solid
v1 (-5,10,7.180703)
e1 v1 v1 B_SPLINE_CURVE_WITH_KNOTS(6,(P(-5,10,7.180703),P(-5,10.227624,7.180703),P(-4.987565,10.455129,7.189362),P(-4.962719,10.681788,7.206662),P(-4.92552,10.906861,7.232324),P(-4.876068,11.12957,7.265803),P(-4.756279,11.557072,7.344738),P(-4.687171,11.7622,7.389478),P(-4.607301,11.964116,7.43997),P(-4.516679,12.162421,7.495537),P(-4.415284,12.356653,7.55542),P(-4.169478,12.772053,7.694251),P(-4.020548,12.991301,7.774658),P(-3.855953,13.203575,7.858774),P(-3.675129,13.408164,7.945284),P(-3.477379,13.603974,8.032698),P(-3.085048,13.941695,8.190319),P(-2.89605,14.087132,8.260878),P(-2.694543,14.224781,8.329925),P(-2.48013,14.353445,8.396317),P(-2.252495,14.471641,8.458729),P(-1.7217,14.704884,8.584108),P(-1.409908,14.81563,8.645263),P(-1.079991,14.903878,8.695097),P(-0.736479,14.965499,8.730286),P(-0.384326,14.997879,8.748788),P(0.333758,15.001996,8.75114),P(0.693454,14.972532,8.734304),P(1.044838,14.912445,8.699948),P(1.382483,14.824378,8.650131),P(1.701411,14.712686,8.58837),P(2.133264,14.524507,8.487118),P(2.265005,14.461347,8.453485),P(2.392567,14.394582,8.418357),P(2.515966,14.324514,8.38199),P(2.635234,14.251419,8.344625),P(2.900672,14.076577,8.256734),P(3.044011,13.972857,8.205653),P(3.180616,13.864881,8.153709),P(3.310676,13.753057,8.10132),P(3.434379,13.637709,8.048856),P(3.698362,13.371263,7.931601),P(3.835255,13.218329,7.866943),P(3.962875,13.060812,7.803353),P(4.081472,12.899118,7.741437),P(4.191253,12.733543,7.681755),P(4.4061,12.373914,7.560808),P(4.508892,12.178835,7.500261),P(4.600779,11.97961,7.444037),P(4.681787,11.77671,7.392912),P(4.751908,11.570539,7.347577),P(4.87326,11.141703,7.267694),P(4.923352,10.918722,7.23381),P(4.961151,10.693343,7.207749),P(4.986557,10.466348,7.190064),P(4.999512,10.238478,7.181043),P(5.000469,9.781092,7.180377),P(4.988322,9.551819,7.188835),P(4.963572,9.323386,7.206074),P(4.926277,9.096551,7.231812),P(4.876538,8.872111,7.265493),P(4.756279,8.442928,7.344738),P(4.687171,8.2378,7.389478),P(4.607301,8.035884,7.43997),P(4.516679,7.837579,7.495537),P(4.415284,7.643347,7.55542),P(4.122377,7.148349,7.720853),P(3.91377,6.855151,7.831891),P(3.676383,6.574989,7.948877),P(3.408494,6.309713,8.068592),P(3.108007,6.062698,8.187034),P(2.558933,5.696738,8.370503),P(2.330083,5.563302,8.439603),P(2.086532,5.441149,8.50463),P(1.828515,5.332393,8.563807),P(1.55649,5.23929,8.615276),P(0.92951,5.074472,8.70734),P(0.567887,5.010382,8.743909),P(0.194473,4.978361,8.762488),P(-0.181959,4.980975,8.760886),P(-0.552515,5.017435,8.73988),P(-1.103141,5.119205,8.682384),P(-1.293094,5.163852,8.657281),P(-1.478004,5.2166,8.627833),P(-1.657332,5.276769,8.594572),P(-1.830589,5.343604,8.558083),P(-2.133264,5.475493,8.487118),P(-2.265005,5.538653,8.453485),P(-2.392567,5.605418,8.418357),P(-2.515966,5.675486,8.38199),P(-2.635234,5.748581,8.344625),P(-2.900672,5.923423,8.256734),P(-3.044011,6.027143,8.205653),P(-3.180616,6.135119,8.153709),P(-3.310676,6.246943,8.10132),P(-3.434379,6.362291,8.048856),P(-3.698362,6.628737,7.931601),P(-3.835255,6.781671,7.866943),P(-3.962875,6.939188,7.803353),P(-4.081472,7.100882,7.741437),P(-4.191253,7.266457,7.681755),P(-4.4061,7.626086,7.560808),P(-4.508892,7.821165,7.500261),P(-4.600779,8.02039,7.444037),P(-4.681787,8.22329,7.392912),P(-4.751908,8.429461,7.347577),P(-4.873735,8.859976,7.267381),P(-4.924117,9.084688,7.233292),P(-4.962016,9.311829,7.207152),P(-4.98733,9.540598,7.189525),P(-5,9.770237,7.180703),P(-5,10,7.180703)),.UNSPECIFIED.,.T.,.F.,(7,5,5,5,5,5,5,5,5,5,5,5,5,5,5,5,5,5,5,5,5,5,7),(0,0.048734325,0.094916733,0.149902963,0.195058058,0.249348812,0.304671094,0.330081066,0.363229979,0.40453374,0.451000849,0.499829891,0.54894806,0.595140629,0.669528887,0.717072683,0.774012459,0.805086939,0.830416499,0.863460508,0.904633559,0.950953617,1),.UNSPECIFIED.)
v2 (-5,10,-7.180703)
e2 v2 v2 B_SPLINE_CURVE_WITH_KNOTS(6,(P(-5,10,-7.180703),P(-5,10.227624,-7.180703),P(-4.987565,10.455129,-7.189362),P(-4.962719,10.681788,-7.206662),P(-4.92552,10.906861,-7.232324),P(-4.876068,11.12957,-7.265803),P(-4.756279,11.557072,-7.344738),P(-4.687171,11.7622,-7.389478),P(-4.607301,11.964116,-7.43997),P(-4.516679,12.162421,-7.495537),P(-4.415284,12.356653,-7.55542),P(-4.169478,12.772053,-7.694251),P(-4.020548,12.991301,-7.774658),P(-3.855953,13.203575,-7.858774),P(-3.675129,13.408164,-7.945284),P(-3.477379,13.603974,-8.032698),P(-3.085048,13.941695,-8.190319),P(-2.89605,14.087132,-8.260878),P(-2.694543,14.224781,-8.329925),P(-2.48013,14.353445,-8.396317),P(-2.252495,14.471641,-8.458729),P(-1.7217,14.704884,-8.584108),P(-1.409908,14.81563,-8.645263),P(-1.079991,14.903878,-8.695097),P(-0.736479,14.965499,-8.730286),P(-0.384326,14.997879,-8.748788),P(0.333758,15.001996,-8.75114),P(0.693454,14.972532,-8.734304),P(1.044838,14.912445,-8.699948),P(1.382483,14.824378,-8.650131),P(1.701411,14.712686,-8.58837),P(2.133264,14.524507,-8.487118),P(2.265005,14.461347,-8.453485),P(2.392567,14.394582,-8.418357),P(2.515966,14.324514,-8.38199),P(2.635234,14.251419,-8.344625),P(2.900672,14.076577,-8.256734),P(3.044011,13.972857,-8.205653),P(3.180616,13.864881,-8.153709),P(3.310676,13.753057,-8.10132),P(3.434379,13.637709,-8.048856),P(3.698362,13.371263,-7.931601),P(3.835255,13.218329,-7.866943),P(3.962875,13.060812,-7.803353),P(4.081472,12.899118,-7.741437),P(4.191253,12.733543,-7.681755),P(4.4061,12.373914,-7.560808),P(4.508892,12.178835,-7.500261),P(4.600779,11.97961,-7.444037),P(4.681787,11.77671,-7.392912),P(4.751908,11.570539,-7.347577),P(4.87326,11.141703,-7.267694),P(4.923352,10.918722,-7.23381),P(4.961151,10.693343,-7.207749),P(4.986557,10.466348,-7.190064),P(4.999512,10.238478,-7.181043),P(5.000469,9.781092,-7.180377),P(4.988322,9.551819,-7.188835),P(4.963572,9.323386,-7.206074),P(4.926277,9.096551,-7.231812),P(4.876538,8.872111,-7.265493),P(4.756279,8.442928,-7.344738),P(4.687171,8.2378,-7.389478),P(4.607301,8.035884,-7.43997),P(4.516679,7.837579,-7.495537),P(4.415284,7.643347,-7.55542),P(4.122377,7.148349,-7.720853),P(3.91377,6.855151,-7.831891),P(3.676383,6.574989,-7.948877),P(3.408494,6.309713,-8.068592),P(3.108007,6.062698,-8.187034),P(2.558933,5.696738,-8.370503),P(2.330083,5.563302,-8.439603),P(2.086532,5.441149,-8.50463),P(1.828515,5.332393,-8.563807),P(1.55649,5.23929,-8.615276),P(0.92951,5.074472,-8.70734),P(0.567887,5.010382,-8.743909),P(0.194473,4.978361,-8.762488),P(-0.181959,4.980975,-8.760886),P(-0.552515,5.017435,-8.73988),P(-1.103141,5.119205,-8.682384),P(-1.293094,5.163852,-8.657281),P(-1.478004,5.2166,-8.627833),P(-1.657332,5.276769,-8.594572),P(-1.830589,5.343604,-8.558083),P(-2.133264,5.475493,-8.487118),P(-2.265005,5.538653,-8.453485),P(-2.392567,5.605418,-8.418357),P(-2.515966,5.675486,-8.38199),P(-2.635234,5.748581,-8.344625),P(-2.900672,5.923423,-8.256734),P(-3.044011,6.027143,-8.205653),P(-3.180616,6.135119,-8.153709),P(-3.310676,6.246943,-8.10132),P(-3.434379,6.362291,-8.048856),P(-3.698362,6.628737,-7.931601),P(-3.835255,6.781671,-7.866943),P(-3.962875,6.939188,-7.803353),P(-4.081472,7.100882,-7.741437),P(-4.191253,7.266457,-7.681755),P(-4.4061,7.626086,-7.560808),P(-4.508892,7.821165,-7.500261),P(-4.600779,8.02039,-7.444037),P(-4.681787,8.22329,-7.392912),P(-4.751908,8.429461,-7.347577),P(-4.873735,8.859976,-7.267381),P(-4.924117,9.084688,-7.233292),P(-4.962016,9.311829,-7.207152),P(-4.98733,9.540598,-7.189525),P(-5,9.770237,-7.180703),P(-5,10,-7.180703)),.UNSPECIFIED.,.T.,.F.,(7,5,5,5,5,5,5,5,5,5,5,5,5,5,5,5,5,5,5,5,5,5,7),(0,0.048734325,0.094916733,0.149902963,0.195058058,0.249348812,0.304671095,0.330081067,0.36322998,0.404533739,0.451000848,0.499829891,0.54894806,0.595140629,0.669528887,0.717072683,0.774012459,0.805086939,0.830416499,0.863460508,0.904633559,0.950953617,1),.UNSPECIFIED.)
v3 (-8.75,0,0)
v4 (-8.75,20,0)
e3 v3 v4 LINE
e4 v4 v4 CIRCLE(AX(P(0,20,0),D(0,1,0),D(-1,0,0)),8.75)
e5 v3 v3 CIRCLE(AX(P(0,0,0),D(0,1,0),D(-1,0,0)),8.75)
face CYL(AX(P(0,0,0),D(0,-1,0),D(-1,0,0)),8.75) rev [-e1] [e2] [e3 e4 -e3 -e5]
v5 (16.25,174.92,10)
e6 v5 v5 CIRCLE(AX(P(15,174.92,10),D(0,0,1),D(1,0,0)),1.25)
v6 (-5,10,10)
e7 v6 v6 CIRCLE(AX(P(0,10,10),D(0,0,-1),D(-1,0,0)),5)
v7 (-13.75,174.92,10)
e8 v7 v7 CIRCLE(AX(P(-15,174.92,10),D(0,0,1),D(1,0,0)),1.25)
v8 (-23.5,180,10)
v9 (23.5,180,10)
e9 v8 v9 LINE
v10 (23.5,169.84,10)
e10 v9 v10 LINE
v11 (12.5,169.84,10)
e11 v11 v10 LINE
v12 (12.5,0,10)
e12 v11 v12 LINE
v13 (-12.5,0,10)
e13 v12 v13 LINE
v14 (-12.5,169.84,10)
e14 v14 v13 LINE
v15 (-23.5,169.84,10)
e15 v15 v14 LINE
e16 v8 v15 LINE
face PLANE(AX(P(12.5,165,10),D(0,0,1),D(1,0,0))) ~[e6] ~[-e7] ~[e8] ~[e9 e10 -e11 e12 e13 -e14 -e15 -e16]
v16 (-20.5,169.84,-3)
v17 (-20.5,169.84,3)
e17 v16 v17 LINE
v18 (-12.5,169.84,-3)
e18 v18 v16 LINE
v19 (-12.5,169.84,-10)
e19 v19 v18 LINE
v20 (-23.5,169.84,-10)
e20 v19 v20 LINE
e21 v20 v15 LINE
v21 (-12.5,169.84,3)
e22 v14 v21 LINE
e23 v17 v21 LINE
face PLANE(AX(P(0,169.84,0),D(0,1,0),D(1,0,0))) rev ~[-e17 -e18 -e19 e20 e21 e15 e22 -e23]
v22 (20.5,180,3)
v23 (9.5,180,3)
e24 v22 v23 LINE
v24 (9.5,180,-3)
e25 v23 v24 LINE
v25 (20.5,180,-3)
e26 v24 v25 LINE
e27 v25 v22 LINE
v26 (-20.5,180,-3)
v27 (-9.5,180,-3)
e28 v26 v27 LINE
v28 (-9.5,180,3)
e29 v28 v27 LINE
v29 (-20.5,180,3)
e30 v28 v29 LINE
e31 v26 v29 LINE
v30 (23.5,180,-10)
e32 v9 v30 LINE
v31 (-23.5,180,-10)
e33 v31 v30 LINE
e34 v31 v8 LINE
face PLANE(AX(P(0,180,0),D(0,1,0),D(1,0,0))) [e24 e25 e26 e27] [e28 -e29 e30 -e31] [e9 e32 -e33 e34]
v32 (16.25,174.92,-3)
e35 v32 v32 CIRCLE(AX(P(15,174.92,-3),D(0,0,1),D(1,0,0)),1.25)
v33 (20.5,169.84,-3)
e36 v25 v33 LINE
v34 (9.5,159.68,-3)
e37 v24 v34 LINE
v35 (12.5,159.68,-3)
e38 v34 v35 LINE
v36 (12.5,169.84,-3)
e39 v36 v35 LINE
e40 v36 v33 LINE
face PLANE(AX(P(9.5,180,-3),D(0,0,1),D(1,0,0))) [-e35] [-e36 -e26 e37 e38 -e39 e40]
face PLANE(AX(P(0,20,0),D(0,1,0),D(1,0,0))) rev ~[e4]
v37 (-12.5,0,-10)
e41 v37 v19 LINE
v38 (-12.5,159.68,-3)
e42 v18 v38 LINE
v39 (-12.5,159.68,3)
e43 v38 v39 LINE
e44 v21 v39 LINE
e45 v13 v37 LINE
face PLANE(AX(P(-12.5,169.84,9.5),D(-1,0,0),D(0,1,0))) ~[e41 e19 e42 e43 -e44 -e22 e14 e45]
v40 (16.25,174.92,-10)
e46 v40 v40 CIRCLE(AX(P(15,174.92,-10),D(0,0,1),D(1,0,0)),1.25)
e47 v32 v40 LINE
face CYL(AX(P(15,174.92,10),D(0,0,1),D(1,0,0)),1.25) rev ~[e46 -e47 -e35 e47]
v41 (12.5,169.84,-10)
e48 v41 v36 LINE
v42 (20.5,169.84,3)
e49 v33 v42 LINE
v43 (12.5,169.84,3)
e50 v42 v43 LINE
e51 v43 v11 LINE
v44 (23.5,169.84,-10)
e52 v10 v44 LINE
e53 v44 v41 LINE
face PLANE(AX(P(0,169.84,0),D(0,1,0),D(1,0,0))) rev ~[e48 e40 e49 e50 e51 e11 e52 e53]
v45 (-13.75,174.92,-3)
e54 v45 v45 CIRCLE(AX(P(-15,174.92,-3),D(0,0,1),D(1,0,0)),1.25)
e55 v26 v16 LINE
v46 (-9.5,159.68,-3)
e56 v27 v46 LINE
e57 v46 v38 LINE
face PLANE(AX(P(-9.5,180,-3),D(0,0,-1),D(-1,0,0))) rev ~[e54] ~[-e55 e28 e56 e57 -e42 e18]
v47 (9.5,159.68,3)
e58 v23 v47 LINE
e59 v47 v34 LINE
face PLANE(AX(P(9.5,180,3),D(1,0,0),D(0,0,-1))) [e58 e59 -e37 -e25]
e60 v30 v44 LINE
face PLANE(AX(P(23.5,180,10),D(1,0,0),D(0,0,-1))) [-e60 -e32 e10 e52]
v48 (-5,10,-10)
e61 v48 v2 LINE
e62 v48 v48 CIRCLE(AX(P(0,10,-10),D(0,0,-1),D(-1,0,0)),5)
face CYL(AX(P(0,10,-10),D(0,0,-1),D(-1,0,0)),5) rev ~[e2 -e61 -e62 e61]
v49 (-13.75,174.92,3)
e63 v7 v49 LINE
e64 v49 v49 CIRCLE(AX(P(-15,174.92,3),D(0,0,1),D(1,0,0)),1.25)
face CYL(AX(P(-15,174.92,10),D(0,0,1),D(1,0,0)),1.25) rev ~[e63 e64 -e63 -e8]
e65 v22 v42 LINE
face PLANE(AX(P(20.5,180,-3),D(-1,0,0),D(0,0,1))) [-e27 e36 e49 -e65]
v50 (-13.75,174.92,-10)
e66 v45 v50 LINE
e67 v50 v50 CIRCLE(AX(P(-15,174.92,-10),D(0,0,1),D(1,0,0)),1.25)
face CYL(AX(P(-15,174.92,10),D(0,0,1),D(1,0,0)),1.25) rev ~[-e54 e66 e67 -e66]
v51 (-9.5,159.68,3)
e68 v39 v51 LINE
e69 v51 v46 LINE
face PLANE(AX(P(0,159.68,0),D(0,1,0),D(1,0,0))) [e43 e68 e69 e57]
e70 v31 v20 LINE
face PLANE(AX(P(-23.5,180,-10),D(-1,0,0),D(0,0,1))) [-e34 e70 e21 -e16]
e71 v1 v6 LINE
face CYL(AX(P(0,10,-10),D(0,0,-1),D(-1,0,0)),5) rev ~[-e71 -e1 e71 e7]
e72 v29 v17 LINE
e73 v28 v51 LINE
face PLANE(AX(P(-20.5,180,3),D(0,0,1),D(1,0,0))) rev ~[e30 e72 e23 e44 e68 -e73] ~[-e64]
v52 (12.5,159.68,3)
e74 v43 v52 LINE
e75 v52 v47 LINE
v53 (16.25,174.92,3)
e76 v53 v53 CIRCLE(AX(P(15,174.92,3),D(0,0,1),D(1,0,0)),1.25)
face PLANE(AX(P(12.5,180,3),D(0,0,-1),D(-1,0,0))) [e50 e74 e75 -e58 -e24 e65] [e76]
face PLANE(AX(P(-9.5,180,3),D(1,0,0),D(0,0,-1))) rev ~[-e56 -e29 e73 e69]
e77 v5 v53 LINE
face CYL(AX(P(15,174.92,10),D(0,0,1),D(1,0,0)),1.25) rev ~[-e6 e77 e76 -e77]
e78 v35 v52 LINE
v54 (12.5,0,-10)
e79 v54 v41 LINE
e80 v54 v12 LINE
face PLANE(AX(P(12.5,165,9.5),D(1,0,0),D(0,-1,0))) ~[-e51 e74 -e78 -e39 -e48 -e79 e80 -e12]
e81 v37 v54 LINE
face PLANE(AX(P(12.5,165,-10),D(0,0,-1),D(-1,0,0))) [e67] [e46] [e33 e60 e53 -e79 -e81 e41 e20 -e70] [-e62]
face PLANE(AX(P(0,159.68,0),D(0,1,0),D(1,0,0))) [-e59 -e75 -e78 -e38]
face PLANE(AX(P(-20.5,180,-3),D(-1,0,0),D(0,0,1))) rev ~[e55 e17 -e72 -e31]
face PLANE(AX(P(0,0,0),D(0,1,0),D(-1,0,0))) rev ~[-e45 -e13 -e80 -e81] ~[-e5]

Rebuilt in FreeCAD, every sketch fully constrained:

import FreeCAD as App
import Part
import Sketcher
Q = App.Units.Quantity

doc = App.newDocument("Part")
body = doc.addObject("PartDesign::Body", "Body")

# Sketch on XZ plane
sketch1 = doc.addObject("Sketcher::SketchObject", "Sketch")
body.addObject(sketch1)
sketch1.AttachmentSupport = (doc.XZ_Plane, [""])
sketch1.MapMode = "FlatFace"
sketch1.addGeometry(Part.LineSegment(App.Vector(-12, 10, 0), App.Vector(12, 10, 0)), False)
sketch1.addGeometry(Part.LineSegment(App.Vector(12, 10, 0), App.Vector(12, -10, 0)), False)
sketch1.addGeometry(Part.LineSegment(App.Vector(12, -10, 0), App.Vector(-12, -10, 0)), False)
sketch1.addGeometry(Part.LineSegment(App.Vector(-12, -10, 0), App.Vector(-12, 10, 0)), False)
sketch1.addGeometry(Part.Circle(App.Vector(0, 0, 0), App.Vector(0, 0, 1), 9), False)
sketch1.addConstraint(Sketcher.Constraint("Coincident", 0, 2, 1, 1))
sketch1.addConstraint(Sketcher.Constraint("Coincident", 1, 2, 2, 1))
sketch1.addConstraint(Sketcher.Constraint("Coincident", 2, 2, 3, 1))
sketch1.addConstraint(Sketcher.Constraint("Coincident", 3, 2, 0, 1))
sketch1.addConstraint(Sketcher.Constraint("Horizontal", 0))
sketch1.addConstraint(Sketcher.Constraint("Vertical", 1))
sketch1.addConstraint(Sketcher.Constraint("Horizontal", 2))
sketch1.addConstraint(Sketcher.Constraint("Vertical", 3))
sketch1.addConstraint(Sketcher.Constraint("Coincident", 4, 3, -1, 1))
sketch1.addConstraint(Sketcher.Constraint("Symmetric", 0, 2, 2, 2, -1, 1))
sketch1.addConstraint(Sketcher.Constraint("Diameter", 4, 17.5))
sketch1.addConstraint(Sketcher.Constraint("DistanceX", 0, 1, 0, 2, 25.0))
sketch1.addConstraint(Sketcher.Constraint("DistanceY", 1, 2, 1, 1, 20.0))
pad1 = doc.addObject("PartDesign::Pad", "Pad")
body.addObject(pad1)
pad1.Profile = sketch1
pad1.Length = 20
pad1.Reversed = True

# Sketch on XY plane
sketch2 = doc.addObject("Sketcher::SketchObject", "Sketch001")
body.addObject(sketch2)
sketch2.AttachmentSupport = (doc.XY_Plane, [""])
sketch2.MapMode = "FlatFace"
sketch2.AttachmentOffset = App.Placement(App.Vector(0, 0, -10), App.Rotation())
sketch2.addGeometry(Part.Circle(App.Vector(0, 10, 0), App.Vector(0, 0, 1), 5), False)
sketch2.addConstraint(Sketcher.Constraint("PointOnObject", 0, 3, -2))
sketch2.addConstraint(Sketcher.Constraint("Diameter", 0, 10.0))
sketch2.addConstraint(Sketcher.Constraint("DistanceY", -1, 1, 0, 3, 10.0))
pocket1 = doc.addObject("PartDesign::Pocket", "Pocket")
body.addObject(pocket1)
pocket1.Profile = sketch2
pocket1.Length = 20
pocket1.Reversed = True

# Sketch on XZ plane
sketch3 = doc.addObject("Sketcher::SketchObject", "Sketch002")
body.addObject(sketch3)
sketch3.AttachmentSupport = (doc.XZ_Plane, [""])
sketch3.MapMode = "FlatFace"
sketch3.AttachmentOffset = App.Placement(App.Vector(0, 0, -20), App.Rotation())
sketch3.addGeometry(Part.LineSegment(App.Vector(12, 10, 0), App.Vector(12, -10, 0)), False)
sketch3.addGeometry(Part.LineSegment(App.Vector(12, -10, 0), App.Vector(-12, -10, 0)), False)
sketch3.addGeometry(Part.LineSegment(App.Vector(-12, -10, 0), App.Vector(-12, 10, 0)), False)
sketch3.addGeometry(Part.LineSegment(App.Vector(-12, 10, 0), App.Vector(12, 10, 0)), False)
sketch3.addConstraint(Sketcher.Constraint("Coincident", 0, 2, 1, 1))
sketch3.addConstraint(Sketcher.Constraint("Coincident", 1, 2, 2, 1))
sketch3.addConstraint(Sketcher.Constraint("Coincident", 2, 2, 3, 1))
sketch3.addConstraint(Sketcher.Constraint("Coincident", 3, 2, 0, 1))
sketch3.addConstraint(Sketcher.Constraint("Vertical", 0))
sketch3.addConstraint(Sketcher.Constraint("Horizontal", 1))
sketch3.addConstraint(Sketcher.Constraint("Vertical", 2))
sketch3.addConstraint(Sketcher.Constraint("Horizontal", 3))
sketch3.addConstraint(Sketcher.Constraint("Symmetric", 0, 2, 2, 2, -1, 1))
sketch3.addConstraint(Sketcher.Constraint("DistanceX", 1, 2, 1, 1, 25.0))
sketch3.addConstraint(Sketcher.Constraint("DistanceY", 0, 2, 0, 1, 20.0))
pad2 = doc.addObject("PartDesign::Pad", "Pad001")
body.addObject(pad2)
pad2.Profile = sketch3
pad2.Length = 160
pad2.Reversed = True

# Sketch on XY plane
sketch4 = doc.addObject("Sketcher::SketchObject", "Sketch003")
body.addObject(sketch4)
sketch4.AttachmentSupport = (doc.XY_Plane, [""])
sketch4.MapMode = "FlatFace"
sketch4.AttachmentOffset = App.Placement(App.Vector(0, 0, 10), App.Rotation())
sketch4.addGeometry(Part.LineSegment(App.Vector(12, 165, 0), App.Vector(12, 180, 0)), False)
sketch4.addGeometry(Part.LineSegment(App.Vector(12, 180, 0), App.Vector(-12, 180, 0)), False)
sketch4.addGeometry(Part.LineSegment(App.Vector(-12, 180, 0), App.Vector(-12, 165, 0)), False)
sketch4.addGeometry(Part.LineSegment(App.Vector(-12, 165, 0), App.Vector(12, 165, 0)), False)
sketch4.addConstraint(Sketcher.Constraint("Coincident", 0, 2, 1, 1))
sketch4.addConstraint(Sketcher.Constraint("Coincident", 1, 2, 2, 1))
sketch4.addConstraint(Sketcher.Constraint("Coincident", 2, 2, 3, 1))
sketch4.addConstraint(Sketcher.Constraint("Coincident", 3, 2, 0, 1))
sketch4.addConstraint(Sketcher.Constraint("Vertical", 0))
sketch4.addConstraint(Sketcher.Constraint("Horizontal", 1))
sketch4.addConstraint(Sketcher.Constraint("Vertical", 2))
sketch4.addConstraint(Sketcher.Constraint("Horizontal", 3))
sketch4.addConstraint(Sketcher.Constraint("DistanceY", 0, 1, 0, 2, 15.0))
sketch4.addConstraint(Sketcher.Constraint("DistanceX", 1, 2, 1, 1, 25.0))
sketch4.addConstraint(Sketcher.Constraint("DistanceY", -1, 1, 0, 2, 180.0))
sketch4.addConstraint(Sketcher.Constraint("DistanceX", -1, 1, 0, 2, 12.5))
pocket2 = doc.addObject("PartDesign::Pocket", "Pocket001")
body.addObject(pocket2)
pocket2.Profile = sketch4
pocket2.Length = 0.5
doc.recompute()

mirrored = doc.addObject("PartDesign::Mirrored", "Mirrored")
body.addObject(mirrored)
mirrored.Originals = [pocket2]
mirrored.MirrorPlane = (doc.XY_Plane, [""])
body.Tip = mirrored

# Sketch on XZ plane
sketch5 = doc.addObject("Sketcher::SketchObject", "Sketch004")
body.addObject(sketch5)
sketch5.AttachmentSupport = (doc.XZ_Plane, [""])
sketch5.MapMode = "FlatFace"
sketch5.AttachmentOffset = App.Placement(App.Vector(0, 0, -180), App.Rotation())
sketch5.addGeometry(Part.LineSegment(App.Vector(5, 0, 0), App.Vector(3, -4, 0)), False)
sketch5.addGeometry(Part.LineSegment(App.Vector(3, -4, 0), App.Vector(-3, -4, 0)), False)
sketch5.addGeometry(Part.LineSegment(App.Vector(-3, -4, 0), App.Vector(-5, 0, 0)), False)
sketch5.addGeometry(Part.LineSegment(App.Vector(-5, 0, 0), App.Vector(-3, 4, 0)), False)
sketch5.addGeometry(Part.LineSegment(App.Vector(-3, 4, 0), App.Vector(3, 4, 0)), False)
sketch5.addGeometry(Part.LineSegment(App.Vector(3, 4, 0), App.Vector(5, 0, 0)), False)
sketch5.addConstraint(Sketcher.Constraint("Coincident", 0, 2, 1, 1))
sketch5.addConstraint(Sketcher.Constraint("Coincident", 1, 2, 2, 1))
sketch5.addConstraint(Sketcher.Constraint("Coincident", 2, 2, 3, 1))
sketch5.addConstraint(Sketcher.Constraint("Coincident", 3, 2, 4, 1))
sketch5.addConstraint(Sketcher.Constraint("Coincident", 4, 2, 5, 1))
sketch5.addConstraint(Sketcher.Constraint("Coincident", 5, 2, 0, 1))
sketch5.addConstraint(Sketcher.Constraint("Horizontal", 1))
sketch5.addConstraint(Sketcher.Constraint("Horizontal", 4))
sketch5.addConstraint(Sketcher.Constraint("Symmetric", 0, 2, 3, 2, -1, 1))
sketch5.addConstraint(Sketcher.Constraint("Symmetric", 2, 2, 5, 2, -1, 1))
sketch5.addConstraint(Sketcher.Constraint("PointOnObject", 2, 2, -1))
sketch5.addConstraint(Sketcher.Constraint("Parallel", 2, 5))
sketch5.addConstraint(Sketcher.Constraint("Vertical", 1, 2, 3, 2))
sketch5.addConstraint(Sketcher.Constraint("DistanceY", 1, 2, 3, 2, 9.0))
sketch5.addConstraint(Sketcher.Constraint("Angle", 0, Q("-120.0002 deg")))
sketch5.addConstraint(Sketcher.Constraint("DistanceX", 1, 2, 1, 1, 5.1962))
pocket3 = doc.addObject("PartDesign::Pocket", "Pocket002")
body.addObject(pocket3)
pocket3.Profile = sketch5
pocket3.Length = 8
pocket3.Reversed = True

# Sketch on XZ plane
sketch6 = doc.addObject("Sketcher::SketchObject", "Sketch005")
body.addObject(sketch6)
sketch6.AttachmentSupport = (doc.XZ_Plane, [""])
sketch6.MapMode = "FlatFace"
sketch6.AttachmentOffset = App.Placement(App.Vector(0, 0, -172), App.Rotation())
sketch6.addGeometry(Part.LineSegment(App.Vector(-2.6, -4.5, 0), App.Vector(-5.2, 0, 0)), False)
sketch6.addGeometry(Part.LineSegment(App.Vector(-5.2, 0, 0), App.Vector(-2.6, 4.5, 0)), False)
sketch6.addGeometry(Part.LineSegment(App.Vector(-2.6, 4.5, 0), App.Vector(2.6, 4.5, 0)), False)
sketch6.addGeometry(Part.LineSegment(App.Vector(2.6, 4.5, 0), App.Vector(5.2, 0, 0)), False)
sketch6.addGeometry(Part.LineSegment(App.Vector(5.2, 0, 0), App.Vector(2.6, -4.5, 0)), False)
sketch6.addGeometry(Part.LineSegment(App.Vector(2.6, -4.5, 0), App.Vector(-2.6, -4.5, 0)), False)
sketch6.addGeometry(Part.LineSegment(App.Vector(-2, -3.5, 0), App.Vector(2, -3.5, 0)), False)
sketch6.addGeometry(Part.LineSegment(App.Vector(2, -3.5, 0), App.Vector(4, 0, 0)), False)
sketch6.addGeometry(Part.LineSegment(App.Vector(4, 0, 0), App.Vector(2, 3.5, 0)), False)
sketch6.addGeometry(Part.LineSegment(App.Vector(2, 3.5, 0), App.Vector(-2, 3.5, 0)), False)
sketch6.addGeometry(Part.LineSegment(App.Vector(-2, 3.5, 0), App.Vector(-4, 0, 0)), False)
sketch6.addGeometry(Part.LineSegment(App.Vector(-4, 0, 0), App.Vector(-2, -3.5, 0)), False)
sketch6.addConstraint(Sketcher.Constraint("Coincident", 0, 2, 1, 1))
sketch6.addConstraint(Sketcher.Constraint("Coincident", 1, 2, 2, 1))
sketch6.addConstraint(Sketcher.Constraint("Coincident", 2, 2, 3, 1))
sketch6.addConstraint(Sketcher.Constraint("Coincident", 3, 2, 4, 1))
sketch6.addConstraint(Sketcher.Constraint("Coincident", 4, 2, 5, 1))
sketch6.addConstraint(Sketcher.Constraint("Coincident", 5, 2, 0, 1))
sketch6.addConstraint(Sketcher.Constraint("Coincident", 6, 2, 7, 1))
sketch6.addConstraint(Sketcher.Constraint("Coincident", 7, 2, 8, 1))
sketch6.addConstraint(Sketcher.Constraint("Coincident", 8, 2, 9, 1))
sketch6.addConstraint(Sketcher.Constraint("Coincident", 9, 2, 10, 1))
sketch6.addConstraint(Sketcher.Constraint("Coincident", 10, 2, 11, 1))
sketch6.addConstraint(Sketcher.Constraint("Coincident", 11, 2, 6, 1))
sketch6.addConstraint(Sketcher.Constraint("Horizontal", 2))
sketch6.addConstraint(Sketcher.Constraint("Horizontal", 5))
sketch6.addConstraint(Sketcher.Constraint("Horizontal", 6))
sketch6.addConstraint(Sketcher.Constraint("Horizontal", 9))
sketch6.addConstraint(Sketcher.Constraint("Symmetric", 0, 2, 3, 2, -1, 1))
sketch6.addConstraint(Sketcher.Constraint("Symmetric", 1, 2, 4, 2, -1, 1))
sketch6.addConstraint(Sketcher.Constraint("Symmetric", 6, 2, 9, 2, -1, 1))
sketch6.addConstraint(Sketcher.Constraint("Symmetric", 7, 2, 10, 2, -1, 1))
sketch6.addConstraint(Sketcher.Constraint("PointOnObject", 0, 2, -1))
sketch6.addConstraint(Sketcher.Constraint("PointOnObject", 7, 2, -1))
sketch6.addConstraint(Sketcher.Constraint("Parallel", 0, 3))
sketch6.addConstraint(Sketcher.Constraint("Parallel", 4, 7))
sketch6.addConstraint(Sketcher.Constraint("Parallel", 3, 8))
sketch6.addConstraint(Sketcher.Constraint("Parallel", 8, 11))
sketch6.addConstraint(Sketcher.Constraint("Vertical", 2, 2, 4, 2))
sketch6.addConstraint(Sketcher.Constraint("DistanceY", 4, 2, 6, 2, 1.0))
sketch6.addConstraint(Sketcher.Constraint("Angle", 0, Q("120.0002 deg")))
sketch6.addConstraint(Sketcher.Constraint("DistanceY", 4, 2, 2, 2, 9.0))
sketch6.addConstraint(Sketcher.Constraint("DistanceX", 2, 1, 2, 2, 5.1962))
sketch6.addConstraint(Sketcher.Constraint("DistanceX", 6, 1, 6, 2, 4.0414))
pad3 = doc.addObject("PartDesign::Pad", "Pad002")
body.addObject(pad3)
pad3.Profile = sketch6
pad3.Length = 4.5
pad3.Reversed = True

# Sketch on XZ plane
sketch7 = doc.addObject("Sketcher::SketchObject", "Sketch006")
body.addObject(sketch7)
sketch7.AttachmentSupport = (doc.XZ_Plane, [""])
sketch7.MapMode = "FlatFace"
sketch7.AttachmentOffset = App.Placement(App.Vector(0, 0, -180), App.Rotation())
sketch7.addGeometry(Part.LineSegment(App.Vector(24, 10, 0), App.Vector(24, -10, 0)), False)
sketch7.addGeometry(Part.LineSegment(App.Vector(24, -10, 0), App.Vector(-24, -10, 0)), False)
sketch7.addGeometry(Part.LineSegment(App.Vector(-24, -10, 0), App.Vector(-24, 10, 0)), False)
sketch7.addGeometry(Part.LineSegment(App.Vector(-24, 10, 0), App.Vector(24, 10, 0)), False)
sketch7.addGeometry(Part.LineSegment(App.Vector(-20, -3, 0), App.Vector(-10, -3, 0)), False)
sketch7.addGeometry(Part.LineSegment(App.Vector(-10, -3, 0), App.Vector(-10, 3, 0)), False)
sketch7.addGeometry(Part.LineSegment(App.Vector(-10, 3, 0), App.Vector(-20, 3, 0)), False)
sketch7.addGeometry(Part.LineSegment(App.Vector(-20, 3, 0), App.Vector(-20, -3, 0)), False)
sketch7.addGeometry(Part.LineSegment(App.Vector(10, 3, 0), App.Vector(10, -3, 0)), False)
sketch7.addGeometry(Part.LineSegment(App.Vector(10, -3, 0), App.Vector(20, -3, 0)), False)
sketch7.addGeometry(Part.LineSegment(App.Vector(20, -3, 0), App.Vector(20, 3, 0)), False)
sketch7.addGeometry(Part.LineSegment(App.Vector(20, 3, 0), App.Vector(10, 3, 0)), False)
sketch7.addConstraint(Sketcher.Constraint("Coincident", 0, 2, 1, 1))
sketch7.addConstraint(Sketcher.Constraint("Coincident", 1, 2, 2, 1))
sketch7.addConstraint(Sketcher.Constraint("Coincident", 2, 2, 3, 1))
sketch7.addConstraint(Sketcher.Constraint("Coincident", 3, 2, 0, 1))
sketch7.addConstraint(Sketcher.Constraint("Coincident", 4, 2, 5, 1))
sketch7.addConstraint(Sketcher.Constraint("Coincident", 5, 2, 6, 1))
sketch7.addConstraint(Sketcher.Constraint("Coincident", 6, 2, 7, 1))
sketch7.addConstraint(Sketcher.Constraint("Coincident", 7, 2, 4, 1))
sketch7.addConstraint(Sketcher.Constraint("Coincident", 8, 2, 9, 1))
sketch7.addConstraint(Sketcher.Constraint("Coincident", 9, 2, 10, 1))
sketch7.addConstraint(Sketcher.Constraint("Coincident", 10, 2, 11, 1))
sketch7.addConstraint(Sketcher.Constraint("Coincident", 11, 2, 8, 1))
sketch7.addConstraint(Sketcher.Constraint("Vertical", 0))
sketch7.addConstraint(Sketcher.Constraint("Horizontal", 1))
sketch7.addConstraint(Sketcher.Constraint("Vertical", 2))
sketch7.addConstraint(Sketcher.Constraint("Horizontal", 3))
sketch7.addConstraint(Sketcher.Constraint("Horizontal", 4))
sketch7.addConstraint(Sketcher.Constraint("Vertical", 5))
sketch7.addConstraint(Sketcher.Constraint("Horizontal", 6))
sketch7.addConstraint(Sketcher.Constraint("Vertical", 7))
sketch7.addConstraint(Sketcher.Constraint("Vertical", 8))
sketch7.addConstraint(Sketcher.Constraint("Horizontal", 9))
sketch7.addConstraint(Sketcher.Constraint("Vertical", 10))
sketch7.addConstraint(Sketcher.Constraint("Horizontal", 11))
sketch7.addConstraint(Sketcher.Constraint("Symmetric", 0, 2, 2, 2, -1, 1))
sketch7.addConstraint(Sketcher.Constraint("Symmetric", 5, 2, 8, 2, -1, 1))
sketch7.addConstraint(Sketcher.Constraint("Symmetric", 7, 2, 10, 2, -1, 1))
sketch7.addConstraint(Sketcher.Constraint("Horizontal", 7, 2, 8, 2))
sketch7.addConstraint(Sketcher.Constraint("DistanceX", 4, 1, 4, 2, 11.0))
sketch7.addConstraint(Sketcher.Constraint("DistanceY", 5, 1, 5, 2, 6.0))
sketch7.addConstraint(Sketcher.Constraint("DistanceY", 1, 2, 4, 2, 7.0))
sketch7.addConstraint(Sketcher.Constraint("DistanceX", 2, 2, 6, 2, 3.0))
sketch7.addConstraint(Sketcher.Constraint("DistanceX", 1, 2, 1, 1, 47.0))
pad4 = doc.addObject("PartDesign::Pad", "Pad003")
body.addObject(pad4)
pad4.Profile = sketch7
pad4.Length = 10.16

# Sketch on XZ plane
sketch8 = doc.addObject("Sketcher::SketchObject", "Sketch007")
body.addObject(sketch8)
sketch8.AttachmentSupport = (doc.XZ_Plane, [""])
sketch8.MapMode = "FlatFace"
sketch8.AttachmentOffset = App.Placement(App.Vector(0, 0, -180), App.Rotation())
sketch8.addGeometry(Part.LineSegment(App.Vector(-9.5, 3, 0), App.Vector(-9.5, -3, 0)), False)
sketch8.addGeometry(Part.LineSegment(App.Vector(-9.5, -3, 0), App.Vector(-12.5, -3, 0)), False)
sketch8.addGeometry(Part.LineSegment(App.Vector(-12.5, -3, 0), App.Vector(-12.5, 3, 0)), False)
sketch8.addGeometry(Part.LineSegment(App.Vector(-12.5, 3, 0), App.Vector(-9.5, 3, 0)), False)
sketch8.addGeometry(Part.LineSegment(App.Vector(12.5, -3, 0), App.Vector(9.5, -3, 0)), False)
sketch8.addGeometry(Part.LineSegment(App.Vector(9.5, -3, 0), App.Vector(9.5, 3, 0)), False)
sketch8.addGeometry(Part.LineSegment(App.Vector(9.5, 3, 0), App.Vector(12.5, 3, 0)), False)
sketch8.addGeometry(Part.LineSegment(App.Vector(12.5, 3, 0), App.Vector(12.5, -3, 0)), False)
sketch8.addConstraint(Sketcher.Constraint("Coincident", 0, 2, 1, 1))
sketch8.addConstraint(Sketcher.Constraint("Coincident", 1, 2, 2, 1))
sketch8.addConstraint(Sketcher.Constraint("Coincident", 2, 2, 3, 1))
sketch8.addConstraint(Sketcher.Constraint("Coincident", 3, 2, 0, 1))
sketch8.addConstraint(Sketcher.Constraint("Coincident", 4, 2, 5, 1))
sketch8.addConstraint(Sketcher.Constraint("Coincident", 5, 2, 6, 1))
sketch8.addConstraint(Sketcher.Constraint("Coincident", 6, 2, 7, 1))
sketch8.addConstraint(Sketcher.Constraint("Coincident", 7, 2, 4, 1))
sketch8.addConstraint(Sketcher.Constraint("Vertical", 0))
sketch8.addConstraint(Sketcher.Constraint("Horizontal", 1))
sketch8.addConstraint(Sketcher.Constraint("Vertical", 2))
sketch8.addConstraint(Sketcher.Constraint("Horizontal", 3))
sketch8.addConstraint(Sketcher.Constraint("Horizontal", 4))
sketch8.addConstraint(Sketcher.Constraint("Vertical", 5))
sketch8.addConstraint(Sketcher.Constraint("Horizontal", 6))
sketch8.addConstraint(Sketcher.Constraint("Vertical", 7))
sketch8.addConstraint(Sketcher.Constraint("Symmetric", 3, 2, 4, 2, -1, 1))
sketch8.addConstraint(Sketcher.Constraint("Symmetric", 1, 2, 6, 2, -1, 1))
sketch8.addConstraint(Sketcher.Constraint("Horizontal", 1, 2, 4, 2))
sketch8.addConstraint(Sketcher.Constraint("DistanceX", 1, 2, 1, 1, 3.0))
sketch8.addConstraint(Sketcher.Constraint("DistanceY", 0, 2, 0, 1, 6.0))
sketch8.addConstraint(Sketcher.Constraint("DistanceX", 0, 2, -1, 1, 9.5))
pocket4 = doc.addObject("PartDesign::Pocket", "Pocket003")
body.addObject(pocket4)
pocket4.Profile = sketch8
pocket4.Length = 20.32
pocket4.Reversed = True

# Sketch on XY plane
sketch9 = doc.addObject("Sketcher::SketchObject", "Sketch008")
body.addObject(sketch9)
sketch9.AttachmentSupport = (doc.XY_Plane, [""])
sketch9.MapMode = "FlatFace"
sketch9.AttachmentOffset = App.Placement(App.Vector(0, 0, -9.5), App.Rotation())
sketch9.addGeometry(Part.LineSegment(App.Vector(12.5, 169.8, 0), App.Vector(12.5, 165, 0)), False)
sketch9.addGeometry(Part.LineSegment(App.Vector(12.5, 165, 0), App.Vector(-12.5, 165, 0)), False)
sketch9.addGeometry(Part.LineSegment(App.Vector(-12.5, 165, 0), App.Vector(-12.5, 169.8, 0)), False)
sketch9.addGeometry(Part.LineSegment(App.Vector(-12.5, 169.8, 0), App.Vector(12.5, 169.8, 0)), False)
sketch9.addConstraint(Sketcher.Constraint("Coincident", 0, 2, 1, 1))
sketch9.addConstraint(Sketcher.Constraint("Coincident", 1, 2, 2, 1))
sketch9.addConstraint(Sketcher.Constraint("Coincident", 2, 2, 3, 1))
sketch9.addConstraint(Sketcher.Constraint("Coincident", 3, 2, 0, 1))
sketch9.addConstraint(Sketcher.Constraint("Vertical", 0))
sketch9.addConstraint(Sketcher.Constraint("Horizontal", 1))
sketch9.addConstraint(Sketcher.Constraint("Vertical", 2))
sketch9.addConstraint(Sketcher.Constraint("Horizontal", 3))
sketch9.addConstraint(Sketcher.Constraint("DistanceX", 1, 2, 1, 1, 25.0))
sketch9.addConstraint(Sketcher.Constraint("DistanceY", -1, 1, 0, 2, 165.0))
sketch9.addConstraint(Sketcher.Constraint("DistanceY", 0, 2, 0, 1, 4.84))
sketch9.addConstraint(Sketcher.Constraint("DistanceX", -1, 1, 0, 2, 12.5))
pad5 = doc.addObject("PartDesign::Pad", "Pad004")
body.addObject(pad5)
pad5.Profile = sketch9
pad5.Length = 0.5
pad5.Reversed = True
doc.recompute()

mirrored2 = doc.addObject("PartDesign::Mirrored", "Mirrored001")
body.addObject(mirrored2)
mirrored2.Originals = [pad5]
mirrored2.MirrorPlane = (doc.XY_Plane, [""])
body.Tip = mirrored2

# Sketch on XY plane
sketch10 = doc.addObject("Sketcher::SketchObject", "Sketch009")
body.addObject(sketch10)
sketch10.AttachmentSupport = (doc.XY_Plane, [""])
sketch10.MapMode = "FlatFace"
sketch10.AttachmentOffset = App.Placement(App.Vector(0, 0, 10), App.Rotation())
sketch10.addGeometry(Part.Circle(App.Vector(15, 174.9, 0), App.Vector(0, 0, 1), 1.2), False)
sketch10.addGeometry(Part.Circle(App.Vector(-15, 174.9, 0), App.Vector(0, 0, 1), 1.2), False)
sketch10.addConstraint(Sketcher.Constraint("Equal", 0, 1))
sketch10.addConstraint(Sketcher.Constraint("Symmetric", 0, 3, 1, 3, -2))
sketch10.addConstraint(Sketcher.Constraint("Diameter", 0, 2.5))
sketch10.addConstraint(Sketcher.Constraint("DistanceX", -1, 1, 0, 3, 15.0))
sketch10.addConstraint(Sketcher.Constraint("DistanceY", -1, 1, 0, 3, 174.92))
pocket5 = doc.addObject("PartDesign::Pocket", "Pocket004")
body.addObject(pocket5)
pocket5.Profile = sketch10
pocket5.Length = 20

doc.recompute()
